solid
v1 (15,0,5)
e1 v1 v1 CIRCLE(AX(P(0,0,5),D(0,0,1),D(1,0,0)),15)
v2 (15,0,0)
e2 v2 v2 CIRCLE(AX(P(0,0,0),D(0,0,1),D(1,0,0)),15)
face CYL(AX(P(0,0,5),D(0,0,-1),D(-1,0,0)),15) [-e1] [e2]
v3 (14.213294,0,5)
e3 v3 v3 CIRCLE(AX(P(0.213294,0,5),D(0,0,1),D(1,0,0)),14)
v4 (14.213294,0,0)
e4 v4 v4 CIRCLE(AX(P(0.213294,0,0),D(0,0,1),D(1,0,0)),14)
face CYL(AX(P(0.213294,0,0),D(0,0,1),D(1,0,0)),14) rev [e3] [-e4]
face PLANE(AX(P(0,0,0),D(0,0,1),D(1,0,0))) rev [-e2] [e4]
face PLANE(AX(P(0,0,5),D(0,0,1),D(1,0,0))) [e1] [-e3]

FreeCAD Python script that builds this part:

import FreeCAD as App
import Part
import Sketcher
Q = App.Units.Quantity

doc = App.newDocument("Part")
body = doc.addObject("PartDesign::Body", "Body")

sketch1 = body.newObject("Sketcher::SketchObject", "Sketch")
sketch1.AttachmentSupport = (doc.getObject("XY_Plane"), [""])
sketch1.MapMode = "FlatFace"
sketch1.addGeometry(Part.Circle(App.Vector(0, 0, 0), App.Vector(0, 0, 1), 15), False)
sketch1.addConstraint([
    Sketcher.Constraint("Coincident", 0, 3, -1, 1),
    Sketcher.Constraint("Diameter", 0, Q("30 mm")),
])
pad1 = body.newObject("PartDesign::Pad", "Pad")
pad1.Profile = sketch1
pad1.Length = 5

sketch2 = body.newObject("Sketcher::SketchObject", "Sketch001")
sketch2.AttachmentSupport = (doc.getObject("XY_Plane"), [""])
sketch2.MapMode = "FlatFace"
sketch2.AttachmentOffset = App.Placement(App.Vector(0, 0, 5), App.Rotation())
sketch2.addGeometry(Part.Circle(App.Vector(0, 0, 0), App.Vector(0, 0, 1), 14), False)
sketch2.addConstraint([
    Sketcher.Constraint("PointOnObject", 0, 3, -1),
    Sketcher.Constraint("Diameter", 0, Q("28 mm")),
    Sketcher.Constraint("DistanceX", -1, 1, 0, 3, Q("0.213294 mm")),
])
pocket1 = body.newObject("PartDesign::Pocket", "Pocket")
pocket1.Profile = sketch2
pocket1.Length = 5

doc.recompute()
